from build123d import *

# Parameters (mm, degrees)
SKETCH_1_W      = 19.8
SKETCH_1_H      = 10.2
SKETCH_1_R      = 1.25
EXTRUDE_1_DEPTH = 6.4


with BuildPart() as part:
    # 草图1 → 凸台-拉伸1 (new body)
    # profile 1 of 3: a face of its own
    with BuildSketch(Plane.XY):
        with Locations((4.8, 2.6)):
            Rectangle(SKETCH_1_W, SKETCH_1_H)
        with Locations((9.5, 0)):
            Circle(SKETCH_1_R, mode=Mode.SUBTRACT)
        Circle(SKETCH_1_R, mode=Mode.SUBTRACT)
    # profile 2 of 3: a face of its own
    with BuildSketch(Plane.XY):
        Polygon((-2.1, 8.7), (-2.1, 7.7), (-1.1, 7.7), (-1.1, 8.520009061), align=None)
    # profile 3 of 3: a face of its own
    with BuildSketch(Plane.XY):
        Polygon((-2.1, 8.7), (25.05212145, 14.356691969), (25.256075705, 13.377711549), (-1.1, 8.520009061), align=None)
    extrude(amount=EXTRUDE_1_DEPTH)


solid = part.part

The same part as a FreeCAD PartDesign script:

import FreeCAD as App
import Part
import Sketcher

doc = App.newDocument("Part")
params = doc.addObject("Spreadsheet::Sheet", "Params")
for row, (alias, value) in enumerate([
    ("sketch1_diameter", "2.5 mm"),
    ("sketch1_width", "3 mm"),
    ("sketch1_height", "1 mm"),
    ("sketch1_length", "1 mm"),
    ("sketch1_width2", "19.8 mm"),
    ("pad1_length", "6.4 mm"),
], start=1):
    params.set(f"A{row}", alias)
    params.set(f"B{row}", "=" + value)
    params.setAlias(f"B{row}", alias)

body = doc.addObject("PartDesign::Body", "Body")

sketch1 = body.newObject("Sketcher::SketchObject", "Sketch")
sketch1.AttachmentSupport = (doc.getObject("XY_Plane"), [""])
sketch1.MapMode = "FlatFace"
sketch1.addGeometry([
    Part.LineSegment(App.Vector(-5.1, 7.7, 0), App.Vector(-5.1, -2.5, 0)),
    Part.LineSegment(App.Vector(-5.1, -2.5, 0), App.Vector(14.7, -2.5, 0)),
    Part.LineSegment(App.Vector(14.7, -2.5, 0), App.Vector(14.7, 7.7, 0)),
    Part.LineSegment(App.Vector(14.7, 7.7, 0), App.Vector(-1.1, 7.7, 0)),
    Part.LineSegment(App.Vector(-1.1, 7.7, 0), App.Vector(-1.1, 8.520009, 0)),
    Part.LineSegment(App.Vector(-1.1, 8.520009, 0), App.Vector(25.256076, 13.377712, 0)),
    Part.LineSegment(App.Vector(25.256076, 13.377712, 0), App.Vector(25.052121, 14.356692, 0)),
    Part.LineSegment(App.Vector(25.052121, 14.356692, 0), App.Vector(-2.1, 8.7, 0)),
    Part.LineSegment(App.Vector(-2.1, 8.7, 0), App.Vector(-2.1, 7.7, 0)),
    Part.LineSegment(App.Vector(-2.1, 7.7, 0), App.Vector(-5.1, 7.7, 0)),
    Part.Circle(App.Vector(0, 0, 0), App.Vector(0, 0, 1), 1.25),
    Part.Circle(App.Vector(9.5, 0, 0), App.Vector(0, 0, 1), 1.25),
], False)
sketch1.addConstraint([
    Sketcher.Constraint("Coincident", 0, 2, 1, 1),
    Sketcher.Constraint("Coincident", 1, 2, 2, 1),
    Sketcher.Constraint("Coincident", 2, 2, 3, 1),
    Sketcher.Constraint("Coincident", 3, 2, 4, 1),
    Sketcher.Constraint("Coincident", 4, 2, 5, 1),
    Sketcher.Constraint("Coincident", 5, 2, 6, 1),
    Sketcher.Constraint("Coincident", 6, 2, 7, 1),
    Sketcher.Constraint("Coincident", 7, 2, 8, 1),
    Sketcher.Constraint("Coincident", 8, 2, 9, 1),
    Sketcher.Constraint("Coincident", 9, 2, 0, 1),
    Sketcher.Constraint("Vertical", 0),
    Sketcher.Constraint("Horizontal", 1),
    Sketcher.Constraint("Vertical", 2),
    Sketcher.Constraint("Horizontal", 3),
    Sketcher.Constraint("Vertical", 4),
    Sketcher.Constraint("Vertical", 8),
    Sketcher.Constraint("Horizontal", 9),
    Sketcher.Constraint("Coincident", 10, 3, -1, 1),
    Sketcher.Constraint("Equal", 10, 11),
    Sketcher.Constraint("PointOnObject", 11, 3, -1),
    Sketcher.Constraint("Perpendicular", 6, 7),
    Sketcher.Constraint("Horizontal", 3, 2, 8, 2),
    Sketcher.Constraint("Diameter", 10, 2.5),
    Sketcher.Constraint("DistanceX", 9, 2, 9, 1, 3.0),
    Sketcher.Constraint("DistanceY", 8, 2, 8, 1, 1.0),
    Sketcher.Constraint("Distance", 6, 1.0),
    Sketcher.Constraint("DistanceX", 1, 1, 1, 2, 19.8),
    Sketcher.Constraint("DistanceX", 3, 2, 3, 1, 15.8),
    Sketcher.Constraint("DistanceY", 0, 2, 0, 1, 10.2),
    Sketcher.Constraint("Distance", 5, 26.8),
    Sketcher.Constraint("DistanceX", -1, 1, 11, 3, 9.5),
    Sketcher.Constraint("DistanceX", 0, 2, -1, 1, 5.1),
    Sketcher.Constraint("DistanceY", 0, 2, -1, 1, 2.5),
    Sketcher.Constraint("Distance", 7, 27.735102),
    Sketcher.Constraint("DistanceY", 4, 1, 4, 2, 0.820009),
])
sketch1.setExpression("Constraints[22]", "Params.sketch1_diameter")
sketch1.setExpression("Constraints[23]", "Params.sketch1_width")
sketch1.setExpression("Constraints[24]", "Params.sketch1_height")
sketch1.setExpression("Constraints[25]", "Params.sketch1_length")
sketch1.setExpression("Constraints[26]", "Params.sketch1_width2")
pad1 = body.newObject("PartDesign::Pad", "Pad")
pad1.Profile = sketch1
pad1.setExpression("Length", "Params.pad1_length")

doc.recompute()
